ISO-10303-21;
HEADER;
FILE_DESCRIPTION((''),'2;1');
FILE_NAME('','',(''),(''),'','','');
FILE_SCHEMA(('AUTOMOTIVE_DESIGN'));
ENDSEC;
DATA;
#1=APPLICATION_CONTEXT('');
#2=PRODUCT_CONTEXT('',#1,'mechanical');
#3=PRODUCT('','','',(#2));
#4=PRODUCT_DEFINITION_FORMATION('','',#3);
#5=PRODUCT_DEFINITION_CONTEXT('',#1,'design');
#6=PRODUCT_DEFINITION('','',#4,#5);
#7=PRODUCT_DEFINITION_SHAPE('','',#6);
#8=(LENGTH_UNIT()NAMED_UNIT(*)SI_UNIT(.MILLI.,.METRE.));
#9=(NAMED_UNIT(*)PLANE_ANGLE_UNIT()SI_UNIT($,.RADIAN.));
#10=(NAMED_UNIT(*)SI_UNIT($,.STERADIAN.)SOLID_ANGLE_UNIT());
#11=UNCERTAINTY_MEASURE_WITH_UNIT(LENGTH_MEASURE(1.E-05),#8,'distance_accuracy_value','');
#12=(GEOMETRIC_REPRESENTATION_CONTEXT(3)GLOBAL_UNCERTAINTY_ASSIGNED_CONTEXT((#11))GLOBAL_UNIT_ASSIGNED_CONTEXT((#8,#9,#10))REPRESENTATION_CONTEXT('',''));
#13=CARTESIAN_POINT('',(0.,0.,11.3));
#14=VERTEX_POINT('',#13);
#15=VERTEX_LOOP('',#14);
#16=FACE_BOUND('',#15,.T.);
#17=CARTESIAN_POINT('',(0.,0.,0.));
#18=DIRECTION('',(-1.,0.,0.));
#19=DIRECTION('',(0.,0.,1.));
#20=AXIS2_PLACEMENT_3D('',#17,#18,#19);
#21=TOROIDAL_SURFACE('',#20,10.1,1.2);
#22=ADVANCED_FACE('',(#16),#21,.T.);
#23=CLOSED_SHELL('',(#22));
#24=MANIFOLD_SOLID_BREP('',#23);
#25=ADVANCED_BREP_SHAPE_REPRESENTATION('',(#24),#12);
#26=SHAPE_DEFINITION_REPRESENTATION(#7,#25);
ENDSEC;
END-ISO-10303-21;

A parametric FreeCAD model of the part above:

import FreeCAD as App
import Part
import Sketcher
from FreeCAD import Vector

doc = App.newDocument("Part")
params = doc.addObject("Spreadsheet::Sheet", "Params")
for row, (alias, value) in enumerate([
    ("sketch1_diameter", "2.4 mm"),
    ("revolution_angle", "360 deg"),
], start=1):
    params.set(f"A{row}", alias)
    params.set(f"B{row}", "=" + value)
    params.setAlias(f"B{row}", alias)

body = doc.addObject("PartDesign::Body", "Body")

sketch1 = body.newObject("Sketcher::SketchObject", "Sketch")
sketch1.AttachmentSupport = (doc.getObject("XY_Plane"), [""])
sketch1.MapMode = "FlatFace"
sketch1.addGeometry(Part.Circle(Vector(0, 10.1, 0), Vector(0, 0, 1), 1.2), False)
sketch1.addConstraint(Sketcher.Constraint("PointOnObject", 0, 3, -2))
sketch1.addConstraint(Sketcher.Constraint("Diameter", 0, 2.4))
sketch1.addConstraint(Sketcher.Constraint("DistanceY", -1, 1, 0, 3, 10.1))
sketch1.setExpression("Constraints[1]", "Params.sketch1_diameter")
revolution = body.newObject("PartDesign::Revolution", "Revolution")
revolution.Profile = sketch1
revolution.ReferenceAxis = (sketch1, ["H_Axis"])
revolution.setExpression("Angle", "Params.revolution_angle")

doc.recompute()
